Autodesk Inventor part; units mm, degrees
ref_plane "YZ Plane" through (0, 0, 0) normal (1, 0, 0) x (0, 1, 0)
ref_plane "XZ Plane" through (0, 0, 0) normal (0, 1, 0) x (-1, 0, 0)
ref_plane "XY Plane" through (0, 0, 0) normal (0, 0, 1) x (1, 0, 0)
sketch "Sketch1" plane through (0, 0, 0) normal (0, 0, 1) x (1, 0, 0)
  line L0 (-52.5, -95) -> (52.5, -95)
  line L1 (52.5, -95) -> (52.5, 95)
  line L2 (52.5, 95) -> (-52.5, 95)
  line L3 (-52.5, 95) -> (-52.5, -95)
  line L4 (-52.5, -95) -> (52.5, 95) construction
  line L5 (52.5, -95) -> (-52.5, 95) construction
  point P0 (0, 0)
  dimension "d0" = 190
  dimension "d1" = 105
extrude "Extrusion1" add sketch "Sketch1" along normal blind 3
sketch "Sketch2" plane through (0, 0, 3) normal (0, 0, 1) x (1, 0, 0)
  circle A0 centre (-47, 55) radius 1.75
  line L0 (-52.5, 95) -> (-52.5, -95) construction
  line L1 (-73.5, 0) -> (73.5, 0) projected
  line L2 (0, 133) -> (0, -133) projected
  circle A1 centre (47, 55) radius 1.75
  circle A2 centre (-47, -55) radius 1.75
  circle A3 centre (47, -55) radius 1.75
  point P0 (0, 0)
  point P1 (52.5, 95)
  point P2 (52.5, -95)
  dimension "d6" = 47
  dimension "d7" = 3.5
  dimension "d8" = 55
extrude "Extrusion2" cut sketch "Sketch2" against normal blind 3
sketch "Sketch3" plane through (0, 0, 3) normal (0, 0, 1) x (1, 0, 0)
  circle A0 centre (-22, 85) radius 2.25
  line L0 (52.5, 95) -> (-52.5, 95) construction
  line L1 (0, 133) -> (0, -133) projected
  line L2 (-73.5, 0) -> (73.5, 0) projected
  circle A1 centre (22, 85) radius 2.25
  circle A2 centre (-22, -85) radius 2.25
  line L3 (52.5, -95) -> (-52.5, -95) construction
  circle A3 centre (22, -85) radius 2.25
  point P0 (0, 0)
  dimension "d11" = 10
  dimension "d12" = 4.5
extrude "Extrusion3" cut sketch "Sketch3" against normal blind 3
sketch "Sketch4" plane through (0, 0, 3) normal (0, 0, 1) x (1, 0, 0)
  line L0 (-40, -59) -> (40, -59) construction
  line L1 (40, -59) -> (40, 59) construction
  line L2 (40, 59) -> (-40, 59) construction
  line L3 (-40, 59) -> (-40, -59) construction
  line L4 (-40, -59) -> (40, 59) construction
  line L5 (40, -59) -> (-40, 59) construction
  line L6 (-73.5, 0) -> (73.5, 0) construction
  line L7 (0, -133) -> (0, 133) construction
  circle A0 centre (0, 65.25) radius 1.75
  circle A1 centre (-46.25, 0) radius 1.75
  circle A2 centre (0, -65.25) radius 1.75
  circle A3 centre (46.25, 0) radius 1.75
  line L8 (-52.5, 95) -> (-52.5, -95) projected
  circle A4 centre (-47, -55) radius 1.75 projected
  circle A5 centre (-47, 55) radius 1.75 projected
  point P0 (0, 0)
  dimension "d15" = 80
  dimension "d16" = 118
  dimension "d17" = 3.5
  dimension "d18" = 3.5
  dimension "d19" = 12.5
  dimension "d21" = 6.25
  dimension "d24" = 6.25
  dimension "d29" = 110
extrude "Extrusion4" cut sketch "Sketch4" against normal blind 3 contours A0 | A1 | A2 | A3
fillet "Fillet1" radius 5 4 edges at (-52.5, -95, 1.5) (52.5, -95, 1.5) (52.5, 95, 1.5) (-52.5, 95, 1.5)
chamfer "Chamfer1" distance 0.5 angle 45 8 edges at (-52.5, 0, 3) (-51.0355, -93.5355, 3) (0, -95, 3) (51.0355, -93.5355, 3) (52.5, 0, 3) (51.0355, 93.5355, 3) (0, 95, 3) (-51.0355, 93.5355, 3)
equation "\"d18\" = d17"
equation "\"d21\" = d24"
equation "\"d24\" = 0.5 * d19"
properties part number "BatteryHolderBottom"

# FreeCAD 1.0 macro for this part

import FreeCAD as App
import Part
import Sketcher
from FreeCAD import Vector


def edges_at(feature, points):
    """Names of the edges that pass closest to the given points."""
    edges = feature.Shape.Edges
    near = lambda p: min(range(len(edges)), key=lambda i: edges[i].distToShape(Part.Vertex(*p))[0])
    return sorted({f"Edge{near(p) + 1}" for p in points})


def add_polygon(sketch, points):
    """Adds a closed chain of lines whose ends are joined by coincident constraints."""
    first, n = sketch.GeometryCount, len(points)
    for a, b in zip(points, points[1:] + points[:1]):
        sketch.addGeometry(Part.LineSegment(App.Vector(*a, 0), App.Vector(*b, 0)), False)
    for i in range(n):
        sketch.addConstraint(Sketcher.Constraint("Coincident", first + i, 2, first + (i + 1) % n, 1))

doc = App.newDocument("Part")
body = doc.addObject("PartDesign::Body", "Body")

# Sketch on XY plane
sketch1 = body.newObject("Sketcher::SketchObject", "Sketch")
sketch1.AttachmentSupport = (doc.getObject("XY_Plane"), [""])
sketch1.MapMode = "FlatFace"
add_polygon(sketch1, [(-52.5, 95), (-52.5, -95), (52.5, -95), (52.5, 95)])  # lines 0-3
sketch1.addConstraint([
    Sketcher.Constraint("Vertical", 0),
    Sketcher.Constraint("Horizontal", 1),
    Sketcher.Constraint("Vertical", 2),
    Sketcher.Constraint("Horizontal", 3),
    Sketcher.Constraint("Symmetric", 0, 2, 2, 2, -1, 1),
    Sketcher.Constraint("DistanceX", 1, 1, 1, 2, 105.0),
    Sketcher.Constraint("DistanceY", 0, 2, 0, 1, 190.0),
])
pad1 = body.newObject("PartDesign::Pad", "Pad")
pad1.Profile = sketch1
pad1.Length = 3

# Sketch on XY plane
sketch2 = body.newObject("Sketcher::SketchObject", "Sketch001")
sketch2.AttachmentSupport = (doc.getObject("XY_Plane"), [""])
sketch2.MapMode = "FlatFace"
sketch2.AttachmentOffset = App.Placement(Vector(0, 0, 3), App.Rotation())
sketch2.addGeometry([
    Part.Circle(Vector(-47, 55, 0), Vector(0, 0, 1), 1.75),
    Part.Circle(Vector(47, 55, 0), Vector(0, 0, 1), 1.75),
    Part.Circle(Vector(-47, -55, 0), Vector(0, 0, 1), 1.75),
    Part.Circle(Vector(47, -55, 0), Vector(0, 0, 1), 1.75),
], False)
sketch2.addConstraint([
    Sketcher.Constraint("Equal", 0, 1),
    Sketcher.Constraint("Equal", 1, 2),
    Sketcher.Constraint("Equal", 2, 3),
    Sketcher.Constraint("Symmetric", 1, 3, 2, 3, -1, 1),
    Sketcher.Constraint("Symmetric", 0, 3, 3, 3, -1, 1),
    Sketcher.Constraint("Symmetric", 0, 3, 1, 3, -2),
    Sketcher.Constraint("Diameter", 0, 3.5),
    Sketcher.Constraint("DistanceX", 0, 3, -1, 1, 47.0),
    Sketcher.Constraint("DistanceY", -1, 1, 0, 3, 55.0),
])
pocket1 = body.newObject("PartDesign::Pocket", "Pocket")
pocket1.Profile = sketch2
pocket1.Length = 3

# Sketch on XY plane
sketch3 = body.newObject("Sketcher::SketchObject", "Sketch002")
sketch3.AttachmentSupport = (doc.getObject("XY_Plane"), [""])
sketch3.MapMode = "FlatFace"
sketch3.AttachmentOffset = App.Placement(Vector(0, 0, 3), App.Rotation())
sketch3.addGeometry([
    Part.Circle(Vector(-22, 85, 0), Vector(0, 0, 1), 2.25),
    Part.Circle(Vector(22, 85, 0), Vector(0, 0, 1), 2.25),
    Part.Circle(Vector(-22, -85, 0), Vector(0, 0, 1), 2.25),
    Part.Circle(Vector(22, -85, 0), Vector(0, 0, 1), 2.25),
], False)
sketch3.addConstraint([
    Sketcher.Constraint("Equal", 0, 1),
    Sketcher.Constraint("Equal", 1, 2),
    Sketcher.Constraint("Equal", 2, 3),
    Sketcher.Constraint("Symmetric", 1, 3, 2, 3, -1, 1),
    Sketcher.Constraint("Symmetric", 0, 3, 3, 3, -1, 1),
    Sketcher.Constraint("Symmetric", 0, 3, 1, 3, -2),
    Sketcher.Constraint("Diameter", 0, 4.5),
    Sketcher.Constraint("DistanceX", 0, 3, -1, 1, 22.0),
    Sketcher.Constraint("DistanceY", -1, 1, 0, 3, 85.0),
])
pocket2 = body.newObject("PartDesign::Pocket", "Pocket001")
pocket2.Profile = sketch3
pocket2.Length = 3

# Sketch on XY plane
sketch4 = body.newObject("Sketcher::SketchObject", "Sketch003")
sketch4.AttachmentSupport = (doc.getObject("XY_Plane"), [""])
sketch4.MapMode = "FlatFace"
sketch4.AttachmentOffset = App.Placement(Vector(0, 0, 3), App.Rotation())
sketch4.addGeometry([
    Part.Circle(Vector(0, 65.25, 0), Vector(0, 0, 1), 1.75),
    Part.Circle(Vector(-46.25, 0, 0), Vector(0, 0, 1), 1.75),
    Part.Circle(Vector(0, -65.25, 0), Vector(0, 0, 1), 1.75),
    Part.Circle(Vector(46.25, 0, 0), Vector(0, 0, 1), 1.75),
], False)
sketch4.addConstraint([
    Sketcher.Constraint("Equal", 0, 1),
    Sketcher.Constraint("Equal", 1, 2),
    Sketcher.Constraint("Equal", 2, 3),
    Sketcher.Constraint("Symmetric", 0, 3, 2, 3, -1, 1),
    Sketcher.Constraint("Symmetric", 1, 3, 3, 3, -1, 1),
    Sketcher.Constraint("PointOnObject", 0, 3, -2),
    Sketcher.Constraint("PointOnObject", 1, 3, -1),
    Sketcher.Constraint("Diameter", 0, 3.5),
    Sketcher.Constraint("DistanceY", 2, 3, 0, 3, 130.5),
    Sketcher.Constraint("DistanceX", 1, 3, 3, 3, 92.5),
])
pocket3 = body.newObject("PartDesign::Pocket", "Pocket002")
pocket3.Profile = sketch4
pocket3.Length = 3
doc.recompute()

fillet = body.newObject("PartDesign::Fillet", "Fillet")
fillet.Base = (pocket3, edges_at(pocket3, [
    (-52.5, -95, 1.5),
    (52.5, -95, 1.5),
    (52.5, 95, 1.5),
    (-52.5, 95, 1.5),
]))
fillet.Radius = 5
doc.recompute()

chamfer = body.newObject("PartDesign::Chamfer", "Chamfer")
chamfer.Base = (fillet, edges_at(fillet, [
    (-52.5, 0, 3),
    (-51.035, -93.535, 3),
    (0, -95, 3),
    (51.035, -93.535, 3),
    (52.5, 0, 3),
    (51.035, 93.535, 3),
    (0, 95, 3),
    (-51.035, 93.535, 3),
]))
chamfer.Size = 0.5

doc.recompute()
